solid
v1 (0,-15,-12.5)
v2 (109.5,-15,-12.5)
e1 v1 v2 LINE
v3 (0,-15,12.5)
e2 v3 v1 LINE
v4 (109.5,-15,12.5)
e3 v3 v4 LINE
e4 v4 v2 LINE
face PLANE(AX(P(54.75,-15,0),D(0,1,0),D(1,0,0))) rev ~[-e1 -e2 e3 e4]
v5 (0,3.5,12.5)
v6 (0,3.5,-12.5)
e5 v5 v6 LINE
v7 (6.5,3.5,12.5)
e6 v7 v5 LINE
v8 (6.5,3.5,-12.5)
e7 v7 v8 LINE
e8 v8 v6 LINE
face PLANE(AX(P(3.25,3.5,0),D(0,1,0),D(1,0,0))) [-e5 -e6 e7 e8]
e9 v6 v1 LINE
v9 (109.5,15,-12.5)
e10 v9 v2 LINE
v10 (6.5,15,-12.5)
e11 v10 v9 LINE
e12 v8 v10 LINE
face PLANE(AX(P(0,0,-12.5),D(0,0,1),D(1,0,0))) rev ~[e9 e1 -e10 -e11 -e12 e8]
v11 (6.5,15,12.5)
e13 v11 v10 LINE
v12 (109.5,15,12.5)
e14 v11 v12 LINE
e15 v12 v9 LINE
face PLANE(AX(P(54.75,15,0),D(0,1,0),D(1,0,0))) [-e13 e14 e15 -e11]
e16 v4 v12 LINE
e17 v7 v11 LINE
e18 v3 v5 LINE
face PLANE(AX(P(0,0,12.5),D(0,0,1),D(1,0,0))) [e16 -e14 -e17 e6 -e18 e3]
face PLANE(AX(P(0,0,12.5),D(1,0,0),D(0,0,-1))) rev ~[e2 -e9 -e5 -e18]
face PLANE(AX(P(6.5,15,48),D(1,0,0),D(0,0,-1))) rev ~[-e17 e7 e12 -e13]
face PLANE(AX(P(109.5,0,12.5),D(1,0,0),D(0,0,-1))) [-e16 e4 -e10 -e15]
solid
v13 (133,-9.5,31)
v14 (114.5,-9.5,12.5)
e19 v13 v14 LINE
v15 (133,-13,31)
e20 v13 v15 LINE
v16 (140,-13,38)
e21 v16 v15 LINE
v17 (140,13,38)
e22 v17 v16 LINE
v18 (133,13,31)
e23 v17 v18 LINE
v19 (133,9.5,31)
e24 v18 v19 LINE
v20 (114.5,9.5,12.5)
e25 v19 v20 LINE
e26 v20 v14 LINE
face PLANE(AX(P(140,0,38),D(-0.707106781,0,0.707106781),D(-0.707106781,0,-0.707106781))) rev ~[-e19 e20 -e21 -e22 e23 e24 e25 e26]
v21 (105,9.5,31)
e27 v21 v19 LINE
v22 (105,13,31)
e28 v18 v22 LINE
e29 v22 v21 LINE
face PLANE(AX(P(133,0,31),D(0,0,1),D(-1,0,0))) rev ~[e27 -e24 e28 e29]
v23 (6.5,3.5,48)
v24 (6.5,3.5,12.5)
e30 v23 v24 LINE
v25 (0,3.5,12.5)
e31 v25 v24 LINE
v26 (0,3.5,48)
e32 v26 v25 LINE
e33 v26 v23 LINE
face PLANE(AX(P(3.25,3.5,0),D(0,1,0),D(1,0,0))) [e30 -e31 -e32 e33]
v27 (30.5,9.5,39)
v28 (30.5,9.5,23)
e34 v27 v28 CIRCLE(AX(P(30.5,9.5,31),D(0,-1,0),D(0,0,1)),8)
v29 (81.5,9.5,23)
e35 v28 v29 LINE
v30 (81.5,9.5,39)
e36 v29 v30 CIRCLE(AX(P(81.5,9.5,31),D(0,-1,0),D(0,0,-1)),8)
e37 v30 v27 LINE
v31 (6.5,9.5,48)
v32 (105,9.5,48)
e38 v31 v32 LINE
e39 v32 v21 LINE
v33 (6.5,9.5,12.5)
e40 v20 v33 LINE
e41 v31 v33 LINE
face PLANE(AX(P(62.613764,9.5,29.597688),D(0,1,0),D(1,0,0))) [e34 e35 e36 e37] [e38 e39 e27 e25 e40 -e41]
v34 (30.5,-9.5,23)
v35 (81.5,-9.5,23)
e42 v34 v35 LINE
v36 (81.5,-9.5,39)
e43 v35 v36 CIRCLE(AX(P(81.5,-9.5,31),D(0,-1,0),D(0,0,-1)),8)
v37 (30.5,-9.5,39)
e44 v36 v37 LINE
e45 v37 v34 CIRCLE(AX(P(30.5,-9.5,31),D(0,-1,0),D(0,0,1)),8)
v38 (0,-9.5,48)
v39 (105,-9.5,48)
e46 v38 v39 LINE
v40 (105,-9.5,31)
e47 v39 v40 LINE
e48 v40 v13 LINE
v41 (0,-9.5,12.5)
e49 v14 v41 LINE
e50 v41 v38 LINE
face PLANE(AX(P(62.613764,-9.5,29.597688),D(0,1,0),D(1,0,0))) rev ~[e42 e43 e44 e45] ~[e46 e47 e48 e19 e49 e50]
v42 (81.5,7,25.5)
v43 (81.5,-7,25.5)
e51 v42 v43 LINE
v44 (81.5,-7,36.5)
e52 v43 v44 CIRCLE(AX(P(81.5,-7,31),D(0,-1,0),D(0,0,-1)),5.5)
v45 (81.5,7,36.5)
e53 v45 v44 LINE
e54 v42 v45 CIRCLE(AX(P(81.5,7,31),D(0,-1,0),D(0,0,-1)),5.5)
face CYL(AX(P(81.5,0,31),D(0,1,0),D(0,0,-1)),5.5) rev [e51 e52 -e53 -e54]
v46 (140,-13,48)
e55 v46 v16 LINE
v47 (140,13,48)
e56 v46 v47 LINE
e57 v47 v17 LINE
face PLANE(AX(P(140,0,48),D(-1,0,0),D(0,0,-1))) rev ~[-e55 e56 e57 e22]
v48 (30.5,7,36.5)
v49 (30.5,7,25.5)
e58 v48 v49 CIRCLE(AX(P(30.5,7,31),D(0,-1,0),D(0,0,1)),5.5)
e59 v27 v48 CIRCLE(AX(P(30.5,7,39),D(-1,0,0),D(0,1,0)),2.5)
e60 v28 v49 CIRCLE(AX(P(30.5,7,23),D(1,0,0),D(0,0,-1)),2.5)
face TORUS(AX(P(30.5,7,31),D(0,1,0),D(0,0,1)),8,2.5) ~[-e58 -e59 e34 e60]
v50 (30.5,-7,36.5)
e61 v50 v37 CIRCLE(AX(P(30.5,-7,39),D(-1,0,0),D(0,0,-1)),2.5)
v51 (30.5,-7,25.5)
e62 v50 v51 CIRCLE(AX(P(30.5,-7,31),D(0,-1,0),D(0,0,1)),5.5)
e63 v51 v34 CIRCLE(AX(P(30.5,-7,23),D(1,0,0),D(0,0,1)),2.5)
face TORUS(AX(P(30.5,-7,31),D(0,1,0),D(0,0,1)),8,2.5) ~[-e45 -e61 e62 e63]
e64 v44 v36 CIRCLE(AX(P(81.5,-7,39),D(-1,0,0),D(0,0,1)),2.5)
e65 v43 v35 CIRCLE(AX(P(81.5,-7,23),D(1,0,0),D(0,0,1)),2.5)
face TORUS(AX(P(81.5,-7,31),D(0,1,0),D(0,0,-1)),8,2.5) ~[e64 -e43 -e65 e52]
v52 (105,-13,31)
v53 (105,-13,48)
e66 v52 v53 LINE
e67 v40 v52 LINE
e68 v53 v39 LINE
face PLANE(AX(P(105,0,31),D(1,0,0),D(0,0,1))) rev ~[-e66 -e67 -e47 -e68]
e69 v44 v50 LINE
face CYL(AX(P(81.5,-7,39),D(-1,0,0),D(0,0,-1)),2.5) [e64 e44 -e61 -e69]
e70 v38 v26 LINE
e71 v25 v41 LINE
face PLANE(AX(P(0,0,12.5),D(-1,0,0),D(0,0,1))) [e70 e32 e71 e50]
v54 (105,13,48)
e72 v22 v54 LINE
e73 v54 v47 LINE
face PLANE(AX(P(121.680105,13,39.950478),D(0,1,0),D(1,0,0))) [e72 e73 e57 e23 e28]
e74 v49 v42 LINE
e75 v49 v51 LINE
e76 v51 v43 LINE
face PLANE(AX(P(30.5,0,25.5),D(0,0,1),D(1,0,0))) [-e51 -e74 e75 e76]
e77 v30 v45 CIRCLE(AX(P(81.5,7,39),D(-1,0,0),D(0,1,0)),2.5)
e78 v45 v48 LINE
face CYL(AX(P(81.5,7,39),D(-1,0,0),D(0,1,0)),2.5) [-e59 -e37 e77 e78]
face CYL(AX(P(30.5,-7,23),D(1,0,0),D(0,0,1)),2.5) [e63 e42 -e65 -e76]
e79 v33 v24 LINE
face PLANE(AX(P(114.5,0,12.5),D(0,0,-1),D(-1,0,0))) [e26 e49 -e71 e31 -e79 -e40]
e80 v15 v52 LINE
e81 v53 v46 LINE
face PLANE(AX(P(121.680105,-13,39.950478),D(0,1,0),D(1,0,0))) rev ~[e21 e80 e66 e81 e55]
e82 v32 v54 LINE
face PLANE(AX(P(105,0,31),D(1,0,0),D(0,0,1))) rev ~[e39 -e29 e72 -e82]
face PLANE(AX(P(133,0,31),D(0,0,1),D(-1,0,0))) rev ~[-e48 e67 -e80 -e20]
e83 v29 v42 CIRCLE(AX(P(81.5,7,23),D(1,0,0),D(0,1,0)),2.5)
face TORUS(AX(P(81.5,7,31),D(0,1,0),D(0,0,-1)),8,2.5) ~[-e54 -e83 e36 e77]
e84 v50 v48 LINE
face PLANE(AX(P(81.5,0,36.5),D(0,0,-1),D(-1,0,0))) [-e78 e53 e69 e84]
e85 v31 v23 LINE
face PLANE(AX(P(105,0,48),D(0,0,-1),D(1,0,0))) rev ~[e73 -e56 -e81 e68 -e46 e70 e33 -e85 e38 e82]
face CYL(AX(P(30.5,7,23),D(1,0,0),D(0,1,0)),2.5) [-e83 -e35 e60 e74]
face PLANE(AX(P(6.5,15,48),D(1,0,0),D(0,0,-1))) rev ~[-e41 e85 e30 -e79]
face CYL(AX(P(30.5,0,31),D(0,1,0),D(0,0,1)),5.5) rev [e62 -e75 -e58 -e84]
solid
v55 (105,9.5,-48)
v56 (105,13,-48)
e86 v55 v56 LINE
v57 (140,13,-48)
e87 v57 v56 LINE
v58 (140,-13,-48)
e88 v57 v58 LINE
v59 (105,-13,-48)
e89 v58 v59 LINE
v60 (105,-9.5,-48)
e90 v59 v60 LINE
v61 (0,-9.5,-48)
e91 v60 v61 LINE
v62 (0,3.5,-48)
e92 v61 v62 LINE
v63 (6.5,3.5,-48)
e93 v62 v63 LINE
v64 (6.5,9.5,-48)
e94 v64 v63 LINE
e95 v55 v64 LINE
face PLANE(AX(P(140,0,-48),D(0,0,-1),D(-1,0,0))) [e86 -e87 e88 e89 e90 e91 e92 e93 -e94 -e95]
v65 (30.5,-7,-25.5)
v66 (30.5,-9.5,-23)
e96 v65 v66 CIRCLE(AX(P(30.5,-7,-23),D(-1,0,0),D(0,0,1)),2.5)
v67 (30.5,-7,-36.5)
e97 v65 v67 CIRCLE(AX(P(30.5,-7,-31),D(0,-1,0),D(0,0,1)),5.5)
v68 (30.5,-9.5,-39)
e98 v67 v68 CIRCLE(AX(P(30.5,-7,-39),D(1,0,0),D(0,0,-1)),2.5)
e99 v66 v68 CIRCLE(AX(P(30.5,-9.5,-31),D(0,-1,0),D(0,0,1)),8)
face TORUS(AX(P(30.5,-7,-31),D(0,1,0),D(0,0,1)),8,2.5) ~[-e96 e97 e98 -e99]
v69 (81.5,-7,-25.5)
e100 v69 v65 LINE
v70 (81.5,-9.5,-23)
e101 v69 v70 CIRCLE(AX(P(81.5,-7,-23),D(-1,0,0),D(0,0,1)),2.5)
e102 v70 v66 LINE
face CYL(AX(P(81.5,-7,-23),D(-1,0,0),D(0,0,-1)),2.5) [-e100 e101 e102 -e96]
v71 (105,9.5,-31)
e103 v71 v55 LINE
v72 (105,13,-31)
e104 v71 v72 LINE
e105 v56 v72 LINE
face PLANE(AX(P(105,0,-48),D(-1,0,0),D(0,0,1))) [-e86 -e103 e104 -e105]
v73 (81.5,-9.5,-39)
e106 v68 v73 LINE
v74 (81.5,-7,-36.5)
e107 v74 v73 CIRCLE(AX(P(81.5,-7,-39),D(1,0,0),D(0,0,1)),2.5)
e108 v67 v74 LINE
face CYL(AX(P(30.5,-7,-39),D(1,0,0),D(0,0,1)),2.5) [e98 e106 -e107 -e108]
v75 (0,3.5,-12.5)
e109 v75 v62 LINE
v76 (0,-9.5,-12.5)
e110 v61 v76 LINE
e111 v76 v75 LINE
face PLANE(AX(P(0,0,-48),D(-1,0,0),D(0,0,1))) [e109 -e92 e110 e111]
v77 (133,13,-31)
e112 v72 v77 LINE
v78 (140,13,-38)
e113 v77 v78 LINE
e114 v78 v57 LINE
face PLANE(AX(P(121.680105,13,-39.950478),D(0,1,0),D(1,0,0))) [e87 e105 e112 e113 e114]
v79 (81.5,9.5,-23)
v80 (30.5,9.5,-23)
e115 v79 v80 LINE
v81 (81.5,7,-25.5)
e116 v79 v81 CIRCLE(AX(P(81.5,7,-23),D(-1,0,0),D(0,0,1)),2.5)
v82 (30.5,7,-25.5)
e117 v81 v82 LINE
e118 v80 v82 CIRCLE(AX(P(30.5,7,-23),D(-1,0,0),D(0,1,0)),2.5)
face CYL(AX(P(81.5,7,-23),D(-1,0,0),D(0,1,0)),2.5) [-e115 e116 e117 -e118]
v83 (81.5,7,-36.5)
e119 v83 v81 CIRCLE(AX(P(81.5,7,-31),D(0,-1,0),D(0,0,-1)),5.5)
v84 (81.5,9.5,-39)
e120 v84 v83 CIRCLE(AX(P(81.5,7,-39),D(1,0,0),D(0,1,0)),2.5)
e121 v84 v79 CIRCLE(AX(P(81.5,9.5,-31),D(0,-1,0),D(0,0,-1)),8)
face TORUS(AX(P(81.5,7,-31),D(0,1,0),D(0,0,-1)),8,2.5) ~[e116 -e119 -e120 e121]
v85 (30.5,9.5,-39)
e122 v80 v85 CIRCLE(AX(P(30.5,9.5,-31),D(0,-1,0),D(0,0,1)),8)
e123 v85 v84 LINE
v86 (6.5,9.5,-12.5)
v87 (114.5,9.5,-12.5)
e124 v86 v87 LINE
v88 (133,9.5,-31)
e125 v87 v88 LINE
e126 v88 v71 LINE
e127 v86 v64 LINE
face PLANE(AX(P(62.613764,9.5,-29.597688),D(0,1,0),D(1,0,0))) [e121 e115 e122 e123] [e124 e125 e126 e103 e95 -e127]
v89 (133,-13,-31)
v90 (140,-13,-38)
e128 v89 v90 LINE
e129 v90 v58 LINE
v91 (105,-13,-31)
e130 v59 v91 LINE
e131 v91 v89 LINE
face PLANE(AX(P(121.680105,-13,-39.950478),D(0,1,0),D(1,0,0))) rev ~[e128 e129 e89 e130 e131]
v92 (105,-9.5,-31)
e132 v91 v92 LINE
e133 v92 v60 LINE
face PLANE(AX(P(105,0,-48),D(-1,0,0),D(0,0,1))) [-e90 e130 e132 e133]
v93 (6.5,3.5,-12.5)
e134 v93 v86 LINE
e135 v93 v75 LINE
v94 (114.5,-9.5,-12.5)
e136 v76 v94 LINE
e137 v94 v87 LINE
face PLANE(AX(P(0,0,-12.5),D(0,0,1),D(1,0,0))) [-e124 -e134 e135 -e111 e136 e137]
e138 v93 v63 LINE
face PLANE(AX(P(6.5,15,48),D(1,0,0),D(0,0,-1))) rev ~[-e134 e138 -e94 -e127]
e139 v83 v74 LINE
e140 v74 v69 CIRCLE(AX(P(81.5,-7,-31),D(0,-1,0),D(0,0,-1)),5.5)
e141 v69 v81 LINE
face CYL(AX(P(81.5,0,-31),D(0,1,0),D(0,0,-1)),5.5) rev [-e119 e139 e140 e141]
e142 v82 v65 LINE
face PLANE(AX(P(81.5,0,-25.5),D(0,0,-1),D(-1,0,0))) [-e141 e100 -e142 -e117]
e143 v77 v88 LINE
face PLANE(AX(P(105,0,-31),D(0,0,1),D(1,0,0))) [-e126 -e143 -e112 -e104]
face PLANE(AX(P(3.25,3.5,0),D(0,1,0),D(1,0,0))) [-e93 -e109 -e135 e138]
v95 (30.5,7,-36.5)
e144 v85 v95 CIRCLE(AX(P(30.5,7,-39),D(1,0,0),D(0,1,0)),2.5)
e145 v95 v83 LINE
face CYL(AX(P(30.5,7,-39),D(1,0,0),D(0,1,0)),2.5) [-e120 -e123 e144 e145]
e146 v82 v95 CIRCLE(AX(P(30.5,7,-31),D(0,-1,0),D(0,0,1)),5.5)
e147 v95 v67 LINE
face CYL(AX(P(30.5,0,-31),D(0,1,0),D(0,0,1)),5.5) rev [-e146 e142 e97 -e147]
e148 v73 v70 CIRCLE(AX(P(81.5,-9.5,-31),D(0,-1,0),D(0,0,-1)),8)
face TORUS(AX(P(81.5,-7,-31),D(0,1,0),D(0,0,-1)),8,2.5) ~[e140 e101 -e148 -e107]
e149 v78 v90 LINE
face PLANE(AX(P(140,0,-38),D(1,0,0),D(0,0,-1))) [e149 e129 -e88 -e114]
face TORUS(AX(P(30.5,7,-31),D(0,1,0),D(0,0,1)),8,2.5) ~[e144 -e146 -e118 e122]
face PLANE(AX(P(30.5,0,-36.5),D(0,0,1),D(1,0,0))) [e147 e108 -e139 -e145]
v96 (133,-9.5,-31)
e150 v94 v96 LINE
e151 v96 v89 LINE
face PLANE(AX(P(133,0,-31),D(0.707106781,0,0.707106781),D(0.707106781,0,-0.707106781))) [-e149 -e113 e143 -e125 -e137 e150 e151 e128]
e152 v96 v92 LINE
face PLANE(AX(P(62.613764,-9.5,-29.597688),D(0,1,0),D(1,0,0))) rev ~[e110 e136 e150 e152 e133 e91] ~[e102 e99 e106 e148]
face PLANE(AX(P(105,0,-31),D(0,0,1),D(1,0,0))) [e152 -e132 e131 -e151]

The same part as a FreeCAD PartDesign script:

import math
import FreeCAD as App
import Part
import Sketcher
from FreeCAD import Vector
Q = App.Units.Quantity


def edges_at(feature, points):
    """Names of the edges that pass closest to the given points."""
    edges = feature.Shape.Edges
    near = lambda p: min(range(len(edges)), key=lambda i: edges[i].distToShape(Part.Vertex(*p))[0])
    return sorted({f"Edge{near(p) + 1}" for p in points})


def add_polygon(sketch, points):
    """Adds a closed chain of lines whose ends are joined by coincident constraints."""
    first, n = sketch.GeometryCount, len(points)
    for a, b in zip(points, points[1:] + points[:1]):
        sketch.addGeometry(Part.LineSegment(App.Vector(*a, 0), App.Vector(*b, 0)), False)
    for i in range(n):
        sketch.addConstraint(Sketcher.Constraint("Coincident", first + i, 2, first + (i + 1) % n, 1))

doc = App.newDocument("Part")
body = doc.addObject("PartDesign::Body", "Body")

# Sketch on XZ plane
sketch1 = body.newObject("Sketcher::SketchObject", "Sketch")
sketch1.AttachmentSupport = (doc.getObject("XZ_Plane"), [""])
sketch1.MapMode = "FlatFace"
add_polygon(sketch1, [(0, -12), (0, 12), (110, 12), (110, -12)])  # lines 0-3
sketch1.addConstraint(Sketcher.Constraint("Vertical", 0))
sketch1.addConstraint(Sketcher.Constraint("Horizontal", 1))
sketch1.addConstraint(Sketcher.Constraint("Vertical", 2))
sketch1.addConstraint(Sketcher.Constraint("Horizontal", 3))
sketch1.addConstraint(Sketcher.Constraint("Symmetric", 0, 2, 3, 2, -1, 1))
sketch1.addConstraint(Sketcher.Constraint("DistanceY", 0, 1, 0, 2, 25.0))
sketch1.addConstraint(Sketcher.Constraint("DistanceX", 1, 1, 1, 2, 109.5))
pad1 = body.newObject("PartDesign::Pad", "Pad")
pad1.Profile = sketch1
pad1.Length = 30
pad1.Midplane = True
body2 = doc.addObject("PartDesign::Body", "Body001")

# Sketch on XZ plane
sketch2 = body2.newObject("Sketcher::SketchObject", "Sketch001")
sketch2.AttachmentSupport = (doc.getObject("XZ_Plane001"), [""])
sketch2.MapMode = "FlatFace"
add_polygon(sketch2, [(0, 12), (0, 48), (105, 48), (105, 31), (133, 31), (114, 12)])  # lines 0-5
sketch2.addGeometry(Part.LineSegment(Vector(82, 36, 0), Vector(30, 36, 0)), False)  # 6
sketch2.addGeometry(Part.ArcOfCircle(Part.Circle(Vector(30, 31, 0), Vector(0, 0, 1), 6), math.radians(90), math.radians(270)), False)  # 7
sketch2.addGeometry(Part.LineSegment(Vector(30, 26, 0), Vector(82, 26, 0)), False)  # 8
sketch2.addGeometry(Part.ArcOfCircle(Part.Circle(Vector(82, 31, 0), Vector(0, 0, 1), 6), math.radians(-90), math.radians(90)), False)  # 9
sketch2.addConstraint(Sketcher.Constraint("Tangent", 6, 2, 7, 1))
sketch2.addConstraint(Sketcher.Constraint("Tangent", 7, 2, 8, 1))
sketch2.addConstraint(Sketcher.Constraint("Tangent", 8, 2, 9, 1))
sketch2.addConstraint(Sketcher.Constraint("Tangent", 9, 2, 6, 1))
sketch2.addConstraint(Sketcher.Constraint("Vertical", 0))
sketch2.addConstraint(Sketcher.Constraint("Horizontal", 1))
sketch2.addConstraint(Sketcher.Constraint("Vertical", 2))
sketch2.addConstraint(Sketcher.Constraint("Horizontal", 3))
sketch2.addConstraint(Sketcher.Constraint("Horizontal", 5))
sketch2.addConstraint(Sketcher.Constraint("Horizontal", 6))
sketch2.addConstraint(Sketcher.Constraint("Horizontal", 8))
sketch2.addConstraint(Sketcher.Constraint("PointOnObject", 0, 2, -2))
sketch2.addConstraint(Sketcher.Constraint("Horizontal", 9, 3, 2, 2))
sketch2.addConstraint(Sketcher.Constraint("Radius", 7, 5.5))
sketch2.addConstraint(Sketcher.Constraint("DistanceX", 1, 1, 1, 2, 105.0))
sketch2.addConstraint(Sketcher.Constraint("DistanceX", 3, 1, 3, 2, 28.0))
sketch2.addConstraint(Sketcher.Constraint("DistanceX", 6, 2, 6, 1, 51.0))
sketch2.addConstraint(Sketcher.Constraint("DistanceY", 2, 2, 2, 1, 17.0))
sketch2.addConstraint(Sketcher.Constraint("Angle", 4, Q("-135 deg")))
sketch2.addConstraint(Sketcher.Constraint("DistanceX", 5, 2, 5, 1, 114.5))
sketch2.addConstraint(Sketcher.Constraint("DistanceY", -1, 1, 7, 3, 31.0))
sketch2.addConstraint(Sketcher.Constraint("DistanceX", 9, 3, 4, 2, 33.0))
pad2 = body2.newObject("PartDesign::Pad", "Pad001")
pad2.Profile = sketch2
pad2.Length = 19
pad2.Midplane = True
body3 = doc.addObject("PartDesign::Body", "Body002")

# Sketch on XZ plane
sketch3 = body3.newObject("Sketcher::SketchObject", "Sketch002")
sketch3.AttachmentSupport = (doc.getObject("XZ_Plane002"), [""])
sketch3.MapMode = "FlatFace"
add_polygon(sketch3, [(105, -48), (0, -48), (0, -12), (114, -12), (133, -31), (105, -31)])  # lines 0-5
sketch3.addGeometry(Part.ArcOfCircle(Part.Circle(Vector(82, -31, 0), Vector(0, 0, 1), 6), math.radians(-90), math.radians(90)), False)  # 6
sketch3.addGeometry(Part.LineSegment(Vector(82, -26, 0), Vector(30, -26, 0)), False)  # 7
sketch3.addGeometry(Part.ArcOfCircle(Part.Circle(Vector(30, -31, 0), Vector(0, 0, 1), 6), math.radians(90), math.radians(270)), False)  # 8
sketch3.addGeometry(Part.LineSegment(Vector(30, -36, 0), Vector(82, -36, 0)), False)  # 9
sketch3.addConstraint(Sketcher.Constraint("Tangent", 6, 2, 7, 1))
sketch3.addConstraint(Sketcher.Constraint("Tangent", 7, 2, 8, 1))
sketch3.addConstraint(Sketcher.Constraint("Tangent", 8, 2, 9, 1))
sketch3.addConstraint(Sketcher.Constraint("Tangent", 9, 2, 6, 1))
sketch3.addConstraint(Sketcher.Constraint("Horizontal", 0))
sketch3.addConstraint(Sketcher.Constraint("Vertical", 1))
sketch3.addConstraint(Sketcher.Constraint("Horizontal", 2))
sketch3.addConstraint(Sketcher.Constraint("Horizontal", 4))
sketch3.addConstraint(Sketcher.Constraint("Vertical", 5))
sketch3.addConstraint(Sketcher.Constraint("Horizontal", 7))
sketch3.addConstraint(Sketcher.Constraint("Horizontal", 9))
sketch3.addConstraint(Sketcher.Constraint("PointOnObject", 0, 2, -2))
sketch3.addConstraint(Sketcher.Constraint("Horizontal", 8, 3, 3, 2))
sketch3.addConstraint(Sketcher.Constraint("Radius", 6, 5.5))
sketch3.addConstraint(Sketcher.Constraint("DistanceX", 0, 2, 0, 1, 105.0))
sketch3.addConstraint(Sketcher.Constraint("DistanceX", 4, 2, 4, 1, 28.0))
sketch3.addConstraint(Sketcher.Constraint("DistanceX", 7, 2, 7, 1, 51.0))
sketch3.addConstraint(Sketcher.Constraint("DistanceY", 5, 2, 5, 1, 17.0))
sketch3.addConstraint(Sketcher.Constraint("Angle", 3, Q("-45 deg")))
sketch3.addConstraint(Sketcher.Constraint("DistanceX", 2, 1, 2, 2, 114.5))
sketch3.addConstraint(Sketcher.Constraint("DistanceY", 6, 3, -1, 1, 31.0))
sketch3.addConstraint(Sketcher.Constraint("DistanceX", 6, 3, 2, 2, 33.0))
pad3 = body3.newObject("PartDesign::Pad", "Pad002")
pad3.Profile = sketch3
pad3.Length = 19
pad3.Midplane = True
body2.AllowCompound = True
doc.recompute()

boolean = body2.newObject("PartDesign::Boolean", "Boolean")
boolean.Type = "Fuse"
boolean.addObjects([body3])

# Sketch on XZ plane
sketch4 = body2.newObject("Sketcher::SketchObject", "Sketch003")
sketch4.AttachmentSupport = (doc.getObject("XZ_Plane001"), [""])
sketch4.MapMode = "FlatFace"
add_polygon(sketch4, [(105, 31), (105, 48), (140, 48), (140, 38), (133, 31)])  # lines 0-4
add_polygon(sketch4, [(140, -48), (105, -48), (105, -31), (133, -31), (140, -38)])  # lines 5-9
sketch4.addConstraint(Sketcher.Constraint("Vertical", 0))
sketch4.addConstraint(Sketcher.Constraint("Horizontal", 1))
sketch4.addConstraint(Sketcher.Constraint("Vertical", 2))
sketch4.addConstraint(Sketcher.Constraint("Horizontal", 4))
sketch4.addConstraint(Sketcher.Constraint("Horizontal", 5))
sketch4.addConstraint(Sketcher.Constraint("Vertical", 6))
sketch4.addConstraint(Sketcher.Constraint("Horizontal", 7))
sketch4.addConstraint(Sketcher.Constraint("Vertical", 9))
sketch4.addConstraint(Sketcher.Constraint("Symmetric", 0, 2, 5, 2, -1))
sketch4.addConstraint(Sketcher.Constraint("Symmetric", 3, 2, 7, 2, -1))
sketch4.addConstraint(Sketcher.Constraint("Symmetric", 2, 2, 8, 2, -1))
sketch4.addConstraint(Sketcher.Constraint("Perpendicular", 3, 8))
sketch4.addConstraint(Sketcher.Constraint("DistanceX", 1, 1, 1, 2, 35.0))
sketch4.addConstraint(Sketcher.Constraint("DistanceX", 4, 2, 4, 1, 28.0))
sketch4.addConstraint(Sketcher.Constraint("DistanceY", 0, 1, 0, 2, 17.0))
sketch4.addConstraint(Sketcher.Constraint("DistanceX", -1, 1, 0, 2, 105.0))
sketch4.addConstraint(Sketcher.Constraint("DistanceY", -1, 1, 0, 2, 48.0))
pad4 = body2.newObject("PartDesign::Pad", "Pad003")
pad4.Profile = sketch4
pad4.Length = 26
pad4.Midplane = True
doc.recompute()

fillet = body2.newObject("PartDesign::Fillet", "Fillet")
fillet.Base = (pad4, edges_at(pad4, [
    (56, 9.5, -36.5),
    (87, 9.5, -31),
    (56, 9.5, -25.5),
    (25, 9.5, -31),
]))
fillet.Radius = 2.5
doc.recompute()

fillet2 = body2.newObject("PartDesign::Fillet", "Fillet001")
fillet2.Base = (fillet, edges_at(fillet, [
    (56, 9.5, 36.5),
    (25, 9.5, 31),
    (56, 9.5, 25.5),
    (87, 9.5, 31),
]))
fillet2.Radius = 2.5
doc.recompute()

fillet3 = body2.newObject("PartDesign::Fillet", "Fillet002")
fillet3.Base = (fillet2, edges_at(fillet2, [
    (25, -9.5, -31),
    (56, -9.5, -25.5),
    (87, -9.5, -31),
    (56, -9.5, -36.5),
]))
fillet3.Radius = 2.5
doc.recompute()

fillet4 = body2.newObject("PartDesign::Fillet", "Fillet003")
fillet4.Base = (fillet3, edges_at(fillet3, [
    (56, -9.5, 25.5),
    (25, -9.5, 31),
    (56, -9.5, 36.5),
    (87, -9.5, 31),
]))
fillet4.Radius = 2.5
body4 = doc.addObject("PartDesign::Body", "Body003")

# Sketch on XZ plane
sketch5 = body4.newObject("Sketcher::SketchObject", "Sketch004")
sketch5.AttachmentSupport = (doc.getObject("XZ_Plane003"), [""])
sketch5.MapMode = "FlatFace"
sketch5.AttachmentOffset = App.Placement(Vector(0, 0, -15), App.Rotation())
add_polygon(sketch5, [(0, -48), (0, 48), (6, 48), (6, -48)])  # lines 0-3
sketch5.addConstraint(Sketcher.Constraint("Vertical", 0))
sketch5.addConstraint(Sketcher.Constraint("Horizontal", 1))
sketch5.addConstraint(Sketcher.Constraint("Vertical", 2))
sketch5.addConstraint(Sketcher.Constraint("Horizontal", 3))
sketch5.addConstraint(Sketcher.Constraint("Symmetric", 0, 2, 3, 2, -1, 1))
sketch5.addConstraint(Sketcher.Constraint("DistanceY", 0, 1, 0, 2, 96.0))
sketch5.addConstraint(Sketcher.Constraint("DistanceX", 1, 1, 1, 2, 6.5))
pad5 = body4.newObject("PartDesign::Pad", "Pad004")
pad5.Profile = sketch5
pad5.Length = 11.5
doc.recompute()

body5 = doc.addObject("PartDesign::Body", "Body004")
body5.BaseFeature = body4
boolean2 = body.newObject("PartDesign::Boolean", "Boolean001")
boolean2.Type = "Cut"
boolean2.addObjects([body5])
doc.recompute()
body2.AllowCompound = True
doc.recompute()

boolean3 = body2.newObject("PartDesign::Boolean", "Boolean002")
boolean3.Type = "Cut"
boolean3.addObjects([body4])

doc.recompute()
